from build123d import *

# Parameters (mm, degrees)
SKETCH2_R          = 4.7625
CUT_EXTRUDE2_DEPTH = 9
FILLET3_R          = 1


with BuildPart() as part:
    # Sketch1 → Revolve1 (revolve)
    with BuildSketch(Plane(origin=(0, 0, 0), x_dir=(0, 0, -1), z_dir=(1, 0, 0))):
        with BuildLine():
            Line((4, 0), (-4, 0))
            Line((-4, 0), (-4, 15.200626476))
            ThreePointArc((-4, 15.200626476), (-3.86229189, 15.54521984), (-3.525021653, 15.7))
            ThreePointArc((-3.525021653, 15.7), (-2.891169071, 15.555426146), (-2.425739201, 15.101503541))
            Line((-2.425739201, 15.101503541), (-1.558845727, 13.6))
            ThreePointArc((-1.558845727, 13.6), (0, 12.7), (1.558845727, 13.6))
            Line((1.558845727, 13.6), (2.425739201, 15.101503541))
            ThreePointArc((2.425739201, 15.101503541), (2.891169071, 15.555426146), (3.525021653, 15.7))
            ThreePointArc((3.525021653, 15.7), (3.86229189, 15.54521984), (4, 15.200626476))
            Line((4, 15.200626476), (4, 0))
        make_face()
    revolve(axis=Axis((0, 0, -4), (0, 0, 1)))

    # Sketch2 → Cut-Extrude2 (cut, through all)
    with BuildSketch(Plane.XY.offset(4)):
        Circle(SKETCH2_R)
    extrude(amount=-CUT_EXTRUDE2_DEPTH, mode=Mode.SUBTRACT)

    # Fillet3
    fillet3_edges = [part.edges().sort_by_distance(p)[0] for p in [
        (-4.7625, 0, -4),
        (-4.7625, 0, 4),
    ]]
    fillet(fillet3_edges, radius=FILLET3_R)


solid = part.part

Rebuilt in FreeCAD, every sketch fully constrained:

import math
import FreeCAD as App
import Part
import Sketcher

V = App.Vector
Q = App.Units.Quantity


def edges_at(feature, points):
    """Names of the edges that pass closest to the given points."""
    edges = feature.Shape.Edges
    near = lambda p: min(range(len(edges)), key=lambda i: edges[i].distToShape(Part.Vertex(*p))[0])
    return sorted({f"Edge{near(p) + 1}" for p in points})

doc = App.newDocument("Part")
body = doc.addObject("PartDesign::Body", "Body")

sketch1 = body.newObject("Sketcher::SketchObject", "Sketch")
sketch1.AttachmentSupport = (doc.getObject("YZ_Plane"), [""])
sketch1.MapMode = "FlatFace"
sketch1.addGeometry(Part.LineSegment(V(0, 4, 0), V(0, -4, 0)), False)
sketch1.addGeometry(Part.LineSegment(V(0, -4, 0), V(15.200626, -4, 0)), False)
sketch1.addGeometry(Part.ArcOfCircle(Part.Circle(V(15.200626, -3.5, 0), V(0, 0, 1), 0.5), math.radians(-90), math.radians(-2.868468)), False)
sketch1.addGeometry(Part.ArcOfCircle(Part.Circle(V(14.501504, -3.46497, 0), V(0, 0, 1), 1.2), math.radians(-2.868468), math.radians(60)), False)
sketch1.addGeometry(Part.LineSegment(V(15.101504, -2.425739, 0), V(13.6, -1.558846, 0)), False)
sketch1.addGeometry(Part.ArcOfCircle(Part.Circle(V(14.5, 0, 0), V(0, 0, 1), 1.8), math.radians(120), math.radians(240)), False)
sketch1.addGeometry(Part.LineSegment(V(13.6, 1.558846, 0), V(15.101504, 2.425739, 0)), False)
sketch1.addGeometry(Part.ArcOfCircle(Part.Circle(V(14.501504, 3.46497, 0), V(0, 0, 1), 1.2), math.radians(-60), math.radians(2.868468)), False)
sketch1.addGeometry(Part.ArcOfCircle(Part.Circle(V(15.200626, 3.5, 0), V(0, 0, 1), 0.5), math.radians(2.868468), math.radians(90)), False)
sketch1.addGeometry(Part.LineSegment(V(15.200626, 4, 0), V(0, 4, 0)), False)
sketch1.addConstraint(Sketcher.Constraint("Coincident", 0, 2, 1, 1))
sketch1.addConstraint(Sketcher.Constraint("Tangent", 1, 2, 2, 1))
sketch1.addConstraint(Sketcher.Constraint("Tangent", 2, 2, 3, 1))
sketch1.addConstraint(Sketcher.Constraint("Tangent", 3, 2, 4, 1))
sketch1.addConstraint(Sketcher.Constraint("Tangent", 4, 2, 5, 2))
sketch1.addConstraint(Sketcher.Constraint("Tangent", 5, 1, 6, 1))
sketch1.addConstraint(Sketcher.Constraint("Tangent", 6, 2, 7, 1))
sketch1.addConstraint(Sketcher.Constraint("Tangent", 7, 2, 8, 1))
sketch1.addConstraint(Sketcher.Constraint("Tangent", 8, 2, 9, 1))
sketch1.addConstraint(Sketcher.Constraint("Coincident", 9, 2, 0, 1))
sketch1.addConstraint(Sketcher.Constraint("Vertical", 0))
sketch1.addConstraint(Sketcher.Constraint("Horizontal", 1))
sketch1.addConstraint(Sketcher.Constraint("Horizontal", 9))
sketch1.addConstraint(Sketcher.Constraint("Equal", 3, 7))
sketch1.addConstraint(Sketcher.Constraint("Equal", 2, 8))
sketch1.addConstraint(Sketcher.Constraint("Symmetric", 0, 2, 9, 2, -1, 1))
sketch1.addConstraint(Sketcher.Constraint("Symmetric", 3, 3, 7, 3, -1))
sketch1.addConstraint(Sketcher.Constraint("PointOnObject", 5, 3, -1))
sketch1.addConstraint(Sketcher.Constraint("Radius", 2, 0.5))
sketch1.addConstraint(Sketcher.Constraint("Radius", 3, 1.2))
sketch1.addConstraint(Sketcher.Constraint("Radius", 5, 1.8))
sketch1.addConstraint(Sketcher.Constraint("DistanceY", 0, 2, 0, 1, 8.0))
sketch1.addConstraint(Sketcher.Constraint("Angle", 4, Q("150 deg")))
sketch1.addConstraint(Sketcher.Constraint("DistanceX", -1, 1, 5, 3, 14.5))
sketch1.addConstraint(Sketcher.Constraint("DistanceX", -1, 1, 2, 2, 15.7))
revolution = body.newObject("PartDesign::Revolution", "Revolution")
revolution.Profile = sketch1
revolution.ReferenceAxis = (sketch1, ["V_Axis"])
revolution.Angle = 360

sketch2 = body.newObject("Sketcher::SketchObject", "Sketch001")
sketch2.AttachmentSupport = (doc.getObject("XY_Plane"), [""])
sketch2.MapMode = "FlatFace"
sketch2.AttachmentOffset = App.Placement(V(0, 0, 4), App.Rotation())
sketch2.addGeometry(Part.Circle(V(0, 0, 0), V(0, 0, 1), 4.7625), False)
sketch2.addConstraint(Sketcher.Constraint("Coincident", 0, 3, -1, 1))
sketch2.addConstraint(Sketcher.Constraint("Diameter", 0, 9.525))
pocket1 = body.newObject("PartDesign::Pocket", "Pocket")
pocket1.Profile = sketch2
pocket1.Type = "ThroughAll"
doc.recompute()

fillet = body.newObject("PartDesign::Fillet", "Fillet")
fillet.Base = (pocket1, edges_at(pocket1, [(-4.763, 0, -4), (-4.763, 0, 4)]))
fillet.Radius = 1

doc.recompute()
